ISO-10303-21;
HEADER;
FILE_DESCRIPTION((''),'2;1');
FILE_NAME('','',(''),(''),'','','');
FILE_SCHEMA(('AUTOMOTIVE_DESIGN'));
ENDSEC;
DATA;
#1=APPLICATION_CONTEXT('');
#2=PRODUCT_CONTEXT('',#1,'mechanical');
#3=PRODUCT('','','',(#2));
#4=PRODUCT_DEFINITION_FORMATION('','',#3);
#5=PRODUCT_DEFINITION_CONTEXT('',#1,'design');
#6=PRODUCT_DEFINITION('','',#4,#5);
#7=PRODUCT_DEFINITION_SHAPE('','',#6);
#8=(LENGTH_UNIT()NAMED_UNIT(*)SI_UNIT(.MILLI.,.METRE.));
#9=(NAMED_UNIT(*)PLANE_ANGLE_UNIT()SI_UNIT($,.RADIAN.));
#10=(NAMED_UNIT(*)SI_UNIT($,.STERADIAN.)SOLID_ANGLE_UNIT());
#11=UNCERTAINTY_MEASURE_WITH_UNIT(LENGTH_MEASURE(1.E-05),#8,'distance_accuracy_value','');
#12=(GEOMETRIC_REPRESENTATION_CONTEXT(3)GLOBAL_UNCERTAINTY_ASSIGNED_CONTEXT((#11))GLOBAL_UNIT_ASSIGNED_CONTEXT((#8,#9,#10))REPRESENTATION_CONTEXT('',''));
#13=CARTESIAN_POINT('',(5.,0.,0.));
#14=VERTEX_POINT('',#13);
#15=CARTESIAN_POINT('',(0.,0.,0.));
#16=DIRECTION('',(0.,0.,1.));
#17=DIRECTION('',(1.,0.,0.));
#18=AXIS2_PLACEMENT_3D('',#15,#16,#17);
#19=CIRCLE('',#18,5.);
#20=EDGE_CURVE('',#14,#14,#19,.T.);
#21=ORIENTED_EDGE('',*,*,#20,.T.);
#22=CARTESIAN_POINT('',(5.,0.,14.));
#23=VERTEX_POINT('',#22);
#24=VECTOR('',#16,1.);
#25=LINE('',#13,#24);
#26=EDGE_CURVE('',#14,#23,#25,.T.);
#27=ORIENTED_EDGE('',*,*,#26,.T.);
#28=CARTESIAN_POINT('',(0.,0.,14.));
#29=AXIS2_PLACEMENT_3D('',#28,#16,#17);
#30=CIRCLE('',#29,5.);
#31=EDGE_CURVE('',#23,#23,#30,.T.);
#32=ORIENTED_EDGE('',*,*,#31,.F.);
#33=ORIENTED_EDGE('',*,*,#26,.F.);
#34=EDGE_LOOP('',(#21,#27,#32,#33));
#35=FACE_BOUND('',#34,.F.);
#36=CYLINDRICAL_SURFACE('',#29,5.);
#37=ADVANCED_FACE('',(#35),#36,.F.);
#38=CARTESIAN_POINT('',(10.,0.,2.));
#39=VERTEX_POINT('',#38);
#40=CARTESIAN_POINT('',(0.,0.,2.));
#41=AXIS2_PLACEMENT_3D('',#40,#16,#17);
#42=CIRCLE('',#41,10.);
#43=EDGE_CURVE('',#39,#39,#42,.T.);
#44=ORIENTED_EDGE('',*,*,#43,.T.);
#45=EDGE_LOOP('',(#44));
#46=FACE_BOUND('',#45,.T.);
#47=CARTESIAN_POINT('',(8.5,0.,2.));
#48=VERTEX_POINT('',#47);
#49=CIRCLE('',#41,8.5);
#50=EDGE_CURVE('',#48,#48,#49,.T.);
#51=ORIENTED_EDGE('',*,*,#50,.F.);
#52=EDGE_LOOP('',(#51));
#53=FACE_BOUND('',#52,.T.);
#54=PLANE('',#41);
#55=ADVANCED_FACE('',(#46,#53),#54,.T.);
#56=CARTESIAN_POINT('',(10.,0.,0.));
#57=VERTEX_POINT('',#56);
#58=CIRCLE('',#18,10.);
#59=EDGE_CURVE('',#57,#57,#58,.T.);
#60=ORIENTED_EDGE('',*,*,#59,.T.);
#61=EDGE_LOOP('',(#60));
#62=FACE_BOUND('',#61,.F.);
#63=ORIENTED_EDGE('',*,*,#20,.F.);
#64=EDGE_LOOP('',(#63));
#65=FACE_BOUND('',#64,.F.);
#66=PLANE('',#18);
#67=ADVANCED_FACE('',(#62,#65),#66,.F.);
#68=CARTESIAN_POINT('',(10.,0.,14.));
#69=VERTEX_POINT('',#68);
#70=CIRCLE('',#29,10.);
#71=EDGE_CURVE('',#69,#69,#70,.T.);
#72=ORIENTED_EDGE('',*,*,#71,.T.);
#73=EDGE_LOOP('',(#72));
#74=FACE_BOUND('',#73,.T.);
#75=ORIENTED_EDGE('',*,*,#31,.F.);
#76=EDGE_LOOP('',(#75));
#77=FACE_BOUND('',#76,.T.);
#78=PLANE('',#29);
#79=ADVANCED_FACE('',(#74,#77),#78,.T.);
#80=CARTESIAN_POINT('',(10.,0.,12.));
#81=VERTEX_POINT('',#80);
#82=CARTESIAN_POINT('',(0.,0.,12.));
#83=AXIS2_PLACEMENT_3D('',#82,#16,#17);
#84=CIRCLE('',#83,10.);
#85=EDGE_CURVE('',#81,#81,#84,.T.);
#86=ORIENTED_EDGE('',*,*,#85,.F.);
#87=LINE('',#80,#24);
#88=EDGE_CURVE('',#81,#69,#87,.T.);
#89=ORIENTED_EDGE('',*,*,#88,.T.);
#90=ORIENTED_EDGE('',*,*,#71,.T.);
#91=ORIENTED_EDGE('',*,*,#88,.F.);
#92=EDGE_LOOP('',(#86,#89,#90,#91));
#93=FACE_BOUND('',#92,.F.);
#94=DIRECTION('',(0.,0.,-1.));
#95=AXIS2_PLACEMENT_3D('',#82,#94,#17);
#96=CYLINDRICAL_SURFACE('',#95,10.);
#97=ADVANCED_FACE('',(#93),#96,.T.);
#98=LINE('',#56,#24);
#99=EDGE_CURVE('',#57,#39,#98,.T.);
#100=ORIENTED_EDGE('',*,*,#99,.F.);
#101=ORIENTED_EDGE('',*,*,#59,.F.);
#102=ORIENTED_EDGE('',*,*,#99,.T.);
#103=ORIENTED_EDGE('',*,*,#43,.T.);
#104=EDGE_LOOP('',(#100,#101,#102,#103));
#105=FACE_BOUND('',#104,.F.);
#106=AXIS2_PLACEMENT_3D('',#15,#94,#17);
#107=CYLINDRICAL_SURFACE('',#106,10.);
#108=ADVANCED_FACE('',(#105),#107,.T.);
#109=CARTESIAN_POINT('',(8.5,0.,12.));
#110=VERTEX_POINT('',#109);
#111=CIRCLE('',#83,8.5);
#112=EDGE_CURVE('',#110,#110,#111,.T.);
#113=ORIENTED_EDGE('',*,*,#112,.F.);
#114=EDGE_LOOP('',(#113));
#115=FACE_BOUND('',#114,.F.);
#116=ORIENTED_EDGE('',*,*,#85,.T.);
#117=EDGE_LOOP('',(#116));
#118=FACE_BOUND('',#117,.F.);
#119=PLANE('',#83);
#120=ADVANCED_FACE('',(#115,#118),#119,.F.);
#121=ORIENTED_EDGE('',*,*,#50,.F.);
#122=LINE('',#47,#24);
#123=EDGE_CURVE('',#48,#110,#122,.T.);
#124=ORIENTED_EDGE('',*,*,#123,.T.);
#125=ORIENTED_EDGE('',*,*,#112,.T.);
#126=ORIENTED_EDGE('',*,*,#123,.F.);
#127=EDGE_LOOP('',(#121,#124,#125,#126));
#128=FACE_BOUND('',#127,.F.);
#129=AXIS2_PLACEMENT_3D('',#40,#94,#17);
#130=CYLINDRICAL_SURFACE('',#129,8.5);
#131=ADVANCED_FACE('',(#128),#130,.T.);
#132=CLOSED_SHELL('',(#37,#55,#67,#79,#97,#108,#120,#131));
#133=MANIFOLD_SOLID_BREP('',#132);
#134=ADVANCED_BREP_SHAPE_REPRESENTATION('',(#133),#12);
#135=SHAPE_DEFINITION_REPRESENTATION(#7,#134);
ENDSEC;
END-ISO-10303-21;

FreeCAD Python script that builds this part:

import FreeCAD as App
import Part
import Sketcher

doc = App.newDocument("Part")
body = doc.addObject("PartDesign::Body", "Body")

sketch1 = doc.addObject("Sketcher::SketchObject", "Sketch")
body.addObject(sketch1)
sketch1.AttachmentSupport = (doc.XY_Plane, [""])
sketch1.MapMode = "FlatFace"
sketch1.addGeometry(Part.Circle(App.Vector(0, 0, 0), App.Vector(0, 0, 1), 10), False)
sketch1.addConstraint([
    Sketcher.Constraint("Coincident", 0, 3, -1, 1),
    Sketcher.Constraint("Diameter", 0, 20.0),
])
pad1 = doc.addObject("PartDesign::Pad", "Pad")
body.addObject(pad1)
pad1.Profile = sketch1
pad1.Length = 2

sketch2 = doc.addObject("Sketcher::SketchObject", "Sketch001")
body.addObject(sketch2)
sketch2.AttachmentSupport = (doc.XY_Plane, [""])
sketch2.MapMode = "FlatFace"
sketch2.AttachmentOffset = App.Placement(App.Vector(0, 0, 2), App.Rotation())
sketch2.addGeometry(Part.Circle(App.Vector(0, 0, 0), App.Vector(0, 0, 1), 8), False)
sketch2.addConstraint([
    Sketcher.Constraint("Coincident", 0, 3, -1, 1),
    Sketcher.Constraint("Diameter", 0, 17.0),
])
pad2 = doc.addObject("PartDesign::Pad", "Pad001")
body.addObject(pad2)
pad2.Profile = sketch2
pad2.Length = 10

sketch3 = doc.addObject("Sketcher::SketchObject", "Sketch002")
body.addObject(sketch3)
sketch3.AttachmentSupport = (doc.XY_Plane, [""])
sketch3.MapMode = "FlatFace"
sketch3.AttachmentOffset = App.Placement(App.Vector(0, 0, 12), App.Rotation())
sketch3.addGeometry(Part.Circle(App.Vector(0, 0, 0), App.Vector(0, 0, 1), 10), False)
sketch3.addConstraint([
    Sketcher.Constraint("Coincident", 0, 3, -1, 1),
    Sketcher.Constraint("Diameter", 0, 20.0),
])
pad3 = doc.addObject("PartDesign::Pad", "Pad002")
body.addObject(pad3)
pad3.Profile = sketch3
pad3.Length = 2

sketch4 = doc.addObject("Sketcher::SketchObject", "Sketch003")
body.addObject(sketch4)
sketch4.AttachmentSupport = (doc.XY_Plane, [""])
sketch4.MapMode = "FlatFace"
sketch4.AttachmentOffset = App.Placement(App.Vector(0, 0, 14), App.Rotation())
sketch4.addGeometry(Part.Circle(App.Vector(0, 0, 0), App.Vector(0, 0, 1), 5), False)
sketch4.addConstraint([
    Sketcher.Constraint("Coincident", 0, 3, -1, 1),
    Sketcher.Constraint("Diameter", 0, 10.0),
])
pocket1 = doc.addObject("PartDesign::Pocket", "Pocket")
body.addObject(pocket1)
pocket1.Profile = sketch4
pocket1.Length = 20
pocket2 = doc.addObject("PartDesign::Pocket", "Pocket001")
body.addObject(pocket2)
pocket2.Profile = sketch4
pocket2.Length = 6

doc.recompute()
